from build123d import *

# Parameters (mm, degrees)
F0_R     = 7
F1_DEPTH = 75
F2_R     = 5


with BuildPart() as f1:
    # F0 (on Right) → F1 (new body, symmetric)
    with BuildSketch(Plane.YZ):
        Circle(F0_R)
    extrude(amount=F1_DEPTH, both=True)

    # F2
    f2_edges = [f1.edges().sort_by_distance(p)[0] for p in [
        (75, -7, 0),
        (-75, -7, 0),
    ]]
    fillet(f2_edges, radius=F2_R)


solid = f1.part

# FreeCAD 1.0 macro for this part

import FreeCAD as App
import Part
import Sketcher

V = App.Vector


def edges_at(feature, points):
    """Names of the edges that pass closest to the given points."""
    edges = feature.Shape.Edges
    near = lambda p: min(range(len(edges)), key=lambda i: edges[i].distToShape(Part.Vertex(*p))[0])
    return sorted({f"Edge{near(p) + 1}" for p in points})

doc = App.newDocument("Part")
body = doc.addObject("PartDesign::Body", "Body")

# Sketch on YZ plane
sketch1 = doc.addObject("Sketcher::SketchObject", "Sketch")
body.addObject(sketch1)
sketch1.AttachmentSupport = (doc.YZ_Plane, [""])
sketch1.MapMode = "FlatFace"
sketch1.addGeometry(Part.Circle(V(0, 0, 0), V(0, 0, 1), 7), False)
sketch1.addConstraint(Sketcher.Constraint("Coincident", 0, 3, -1, 1))
sketch1.addConstraint(Sketcher.Constraint("Diameter", 0, 14.0))
pad1 = doc.addObject("PartDesign::Pad", "Pad")
body.addObject(pad1)
pad1.Profile = sketch1
pad1.Length = 150
pad1.Midplane = True
doc.recompute()

fillet = doc.addObject("PartDesign::Fillet", "Fillet")
body.addObject(fillet)
fillet.Base = (pad1, edges_at(pad1, [(75, -7, 0), (-75, -7, 0)]))
fillet.Radius = 5

doc.recompute()
